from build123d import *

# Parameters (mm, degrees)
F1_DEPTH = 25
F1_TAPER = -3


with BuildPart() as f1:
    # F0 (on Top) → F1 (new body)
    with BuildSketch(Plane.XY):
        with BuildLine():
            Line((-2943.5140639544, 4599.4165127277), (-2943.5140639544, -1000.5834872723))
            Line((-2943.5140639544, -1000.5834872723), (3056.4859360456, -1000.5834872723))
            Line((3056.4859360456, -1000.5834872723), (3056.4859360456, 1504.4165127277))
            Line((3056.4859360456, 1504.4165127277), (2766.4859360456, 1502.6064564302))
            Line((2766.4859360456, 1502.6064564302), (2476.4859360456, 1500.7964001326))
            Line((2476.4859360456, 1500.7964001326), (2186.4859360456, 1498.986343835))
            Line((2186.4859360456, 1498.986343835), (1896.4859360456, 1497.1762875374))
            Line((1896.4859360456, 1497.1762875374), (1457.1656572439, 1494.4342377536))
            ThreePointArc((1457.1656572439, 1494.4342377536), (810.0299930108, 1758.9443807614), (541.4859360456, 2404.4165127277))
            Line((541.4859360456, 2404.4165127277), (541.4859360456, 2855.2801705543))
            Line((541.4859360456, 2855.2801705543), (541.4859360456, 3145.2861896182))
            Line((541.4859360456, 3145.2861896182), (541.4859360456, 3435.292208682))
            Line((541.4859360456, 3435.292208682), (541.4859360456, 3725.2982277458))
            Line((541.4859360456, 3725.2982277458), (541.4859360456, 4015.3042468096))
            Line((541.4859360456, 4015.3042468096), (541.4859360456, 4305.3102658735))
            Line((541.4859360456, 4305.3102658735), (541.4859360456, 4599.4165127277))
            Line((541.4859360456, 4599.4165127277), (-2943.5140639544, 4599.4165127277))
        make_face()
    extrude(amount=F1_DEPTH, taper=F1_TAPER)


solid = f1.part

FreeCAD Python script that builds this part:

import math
import FreeCAD as App
import Part
import Sketcher

doc = App.newDocument("Part")
params = doc.addObject("Spreadsheet::Sheet", "Params")
for row, (alias, value) in enumerate([
    ("sketch1_radius", "910 mm"),
    ("sketch1_width", "6000 mm"),
    ("sketch1_width2", "3485 mm"),
    ("sketch1_height", "5600 mm"),
    ("sketch1_height2", "2505 mm"),
    ("pad1_length", "25 mm"),
    ("pad1_taper", "3 deg"),
], start=1):
    params.set(f"A{row}", alias)
    params.set(f"B{row}", "=" + value)
    params.setAlias(f"B{row}", alias)

body = doc.addObject("PartDesign::Body", "Body")

# Sketch on XY plane
sketch1 = body.newObject("Sketcher::SketchObject", "Sketch")
sketch1.AttachmentSupport = (doc.getObject("XY_Plane"), [""])
sketch1.MapMode = "FlatFace"
sketch1.addGeometry(Part.LineSegment(App.Vector(-2944, 4599, 0), App.Vector(-2944, -1001, 0)), False)
sketch1.addGeometry(Part.LineSegment(App.Vector(-2944, -1001, 0), App.Vector(3056, -1001, 0)), False)
sketch1.addGeometry(Part.LineSegment(App.Vector(3056, -1001, 0), App.Vector(3056, 1504, 0)), False)
sketch1.addGeometry(Part.LineSegment(App.Vector(3056, 1504, 0), App.Vector(1457, 1494, 0)), False)
sketch1.addGeometry(Part.ArcOfCircle(Part.Circle(App.Vector(1451, 2404, 0), App.Vector(0, 0, 1), 910), math.radians(180), math.radians(270)), False)
sketch1.addGeometry(Part.LineSegment(App.Vector(541, 2404, 0), App.Vector(541, 4599, 0)), False)
sketch1.addGeometry(Part.LineSegment(App.Vector(541, 4599, 0), App.Vector(-2944, 4599, 0)), False)
sketch1.addConstraint(Sketcher.Constraint("Coincident", 0, 2, 1, 1))
sketch1.addConstraint(Sketcher.Constraint("Coincident", 1, 2, 2, 1))
sketch1.addConstraint(Sketcher.Constraint("Coincident", 2, 2, 3, 1))
sketch1.addConstraint(Sketcher.Constraint("Coincident", 3, 2, 4, 2))
sketch1.addConstraint(Sketcher.Constraint("Coincident", 4, 1, 5, 1))
sketch1.addConstraint(Sketcher.Constraint("Coincident", 5, 2, 6, 1))
sketch1.addConstraint(Sketcher.Constraint("Coincident", 6, 2, 0, 1))
sketch1.addConstraint(Sketcher.Constraint("Vertical", 0))
sketch1.addConstraint(Sketcher.Constraint("Horizontal", 1))
sketch1.addConstraint(Sketcher.Constraint("Vertical", 2))
sketch1.addConstraint(Sketcher.Constraint("Vertical", 5))
sketch1.addConstraint(Sketcher.Constraint("Horizontal", 6))
sketch1.addConstraint(Sketcher.Constraint("Radius", 4, 910.0))
sketch1.addConstraint(Sketcher.Constraint("DistanceX", 1, 1, 1, 2, 6000.0))
sketch1.addConstraint(Sketcher.Constraint("DistanceX", 6, 2, 6, 1, 3485.0))
sketch1.addConstraint(Sketcher.Constraint("DistanceY", 0, 2, 0, 1, 5600.0))
sketch1.addConstraint(Sketcher.Constraint("DistanceY", 2, 1, 2, 2, 2505.0))
sketch1.addConstraint(Sketcher.Constraint("DistanceY", 5, 1, 5, 2, 2195.0))
sketch1.addConstraint(Sketcher.Constraint("DistanceY", 0, 2, 4, 3, 3405.0))
sketch1.addConstraint(Sketcher.Constraint("Distance", 3, 1599.351431))
sketch1.addConstraint(Sketcher.Constraint("DistanceX", -1, 1, 4, 3, 1451.485936))
sketch1.addConstraint(Sketcher.Constraint("DistanceY", -1, 1, 4, 3, 2404.416513))
sketch1.setExpression("Constraints[12]", "Params.sketch1_radius")
sketch1.setExpression("Constraints[13]", "Params.sketch1_width")
sketch1.setExpression("Constraints[14]", "Params.sketch1_width2")
sketch1.setExpression("Constraints[15]", "Params.sketch1_height")
sketch1.setExpression("Constraints[16]", "Params.sketch1_height2")
pad1 = body.newObject("PartDesign::Pad", "Pad")
pad1.Profile = sketch1
pad1.setExpression("Length", "Params.pad1_length")
pad1.setExpression("TaperAngle", "Params.pad1_taper")

doc.recompute()
